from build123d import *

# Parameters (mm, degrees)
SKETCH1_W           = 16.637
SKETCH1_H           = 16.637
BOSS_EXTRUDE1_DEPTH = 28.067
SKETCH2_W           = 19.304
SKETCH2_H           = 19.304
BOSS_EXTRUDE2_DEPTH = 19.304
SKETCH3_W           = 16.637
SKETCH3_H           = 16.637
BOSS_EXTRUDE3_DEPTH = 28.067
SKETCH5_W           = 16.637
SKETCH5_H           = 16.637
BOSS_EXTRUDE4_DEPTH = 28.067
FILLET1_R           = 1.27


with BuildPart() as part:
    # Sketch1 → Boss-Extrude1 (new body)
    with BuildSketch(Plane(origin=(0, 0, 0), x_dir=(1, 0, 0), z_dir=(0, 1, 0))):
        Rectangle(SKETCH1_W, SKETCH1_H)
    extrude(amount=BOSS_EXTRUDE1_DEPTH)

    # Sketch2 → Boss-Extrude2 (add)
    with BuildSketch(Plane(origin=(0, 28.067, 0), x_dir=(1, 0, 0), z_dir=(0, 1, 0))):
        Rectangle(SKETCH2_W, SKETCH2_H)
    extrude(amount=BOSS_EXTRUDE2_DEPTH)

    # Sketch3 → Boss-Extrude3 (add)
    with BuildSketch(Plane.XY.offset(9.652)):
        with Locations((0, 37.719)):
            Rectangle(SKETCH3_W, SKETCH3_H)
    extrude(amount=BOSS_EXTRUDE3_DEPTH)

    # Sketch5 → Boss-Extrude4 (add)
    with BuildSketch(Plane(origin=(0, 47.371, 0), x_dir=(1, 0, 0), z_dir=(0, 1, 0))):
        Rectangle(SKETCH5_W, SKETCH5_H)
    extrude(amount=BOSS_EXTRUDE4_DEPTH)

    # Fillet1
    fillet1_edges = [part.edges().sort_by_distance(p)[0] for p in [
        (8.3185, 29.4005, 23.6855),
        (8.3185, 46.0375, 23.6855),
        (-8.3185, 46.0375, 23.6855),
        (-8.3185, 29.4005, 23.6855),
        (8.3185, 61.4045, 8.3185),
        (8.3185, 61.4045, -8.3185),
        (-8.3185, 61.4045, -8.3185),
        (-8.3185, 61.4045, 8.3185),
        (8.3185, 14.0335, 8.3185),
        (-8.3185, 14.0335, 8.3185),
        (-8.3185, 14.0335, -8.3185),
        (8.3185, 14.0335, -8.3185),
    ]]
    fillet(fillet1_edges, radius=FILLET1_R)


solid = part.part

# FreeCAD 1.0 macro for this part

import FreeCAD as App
import Part
import Sketcher
from FreeCAD import Vector
Q = App.Units.Quantity


def edges_at(feature, points):
    """Names of the edges that pass closest to the given points."""
    edges = feature.Shape.Edges
    near = lambda p: min(range(len(edges)), key=lambda i: edges[i].distToShape(Part.Vertex(*p))[0])
    return sorted({f"Edge{near(p) + 1}" for p in points})


def add_polygon(sketch, points):
    """Adds a closed chain of lines whose ends are joined by coincident constraints."""
    first, n = sketch.GeometryCount, len(points)
    for a, b in zip(points, points[1:] + points[:1]):
        sketch.addGeometry(Part.LineSegment(App.Vector(*a, 0), App.Vector(*b, 0)), False)
    for i in range(n):
        sketch.addConstraint(Sketcher.Constraint("Coincident", first + i, 2, first + (i + 1) % n, 1))

doc = App.newDocument("Part")
body = doc.addObject("PartDesign::Body", "Body")

# Sketch on XZ plane
sketch1 = body.newObject("Sketcher::SketchObject", "Sketch")
sketch1.AttachmentSupport = (doc.getObject("XZ_Plane"), [""])
sketch1.MapMode = "FlatFace"
add_polygon(sketch1, [(-8, -8), (-8, 8), (8, 8), (8, -8)])  # lines 0-3
sketch1.addConstraint(Sketcher.Constraint("Vertical", 0))
sketch1.addConstraint(Sketcher.Constraint("Horizontal", 1))
sketch1.addConstraint(Sketcher.Constraint("Vertical", 2))
sketch1.addConstraint(Sketcher.Constraint("Horizontal", 3))
sketch1.addConstraint(Sketcher.Constraint("Symmetric", 0, 2, 2, 2, -1, 1))
sketch1.addConstraint(Sketcher.Constraint("Equal", 3, 0))
sketch1.addConstraint(Sketcher.Constraint("DistanceX", 1, 1, 1, 2, Q("0.655 in")))
pad1 = body.newObject("PartDesign::Pad", "Pad")
pad1.Profile = sketch1
pad1.Length = Q("1.105 in")
pad1.Reversed = True

# Sketch on XZ plane
sketch2 = body.newObject("Sketcher::SketchObject", "Sketch001")
sketch2.AttachmentSupport = (doc.getObject("XZ_Plane"), [""])
sketch2.MapMode = "FlatFace"
sketch2.AttachmentOffset = App.Placement(Vector(0, 0, -1.105 * 25.4), App.Rotation())
add_polygon(sketch2, [(-10, -10), (-10, 10), (10, 10), (10, -10)])  # lines 0-3
sketch2.addConstraint(Sketcher.Constraint("Vertical", 0))
sketch2.addConstraint(Sketcher.Constraint("Horizontal", 1))
sketch2.addConstraint(Sketcher.Constraint("Vertical", 2))
sketch2.addConstraint(Sketcher.Constraint("Horizontal", 3))
sketch2.addConstraint(Sketcher.Constraint("Symmetric", 0, 2, 2, 2, -1, 1))
sketch2.addConstraint(Sketcher.Constraint("Equal", 3, 0))
sketch2.addConstraint(Sketcher.Constraint("DistanceX", 1, 1, 1, 2, Q("0.76 in")))
pad2 = body.newObject("PartDesign::Pad", "Pad001")
pad2.Profile = sketch2
pad2.Length = Q("0.76 in")
pad2.Reversed = True

# Sketch on XY plane
sketch3 = body.newObject("Sketcher::SketchObject", "Sketch002")
sketch3.AttachmentSupport = (doc.getObject("XY_Plane"), [""])
sketch3.MapMode = "FlatFace"
sketch3.AttachmentOffset = App.Placement(Vector(0, 0, 0.38 * 25.4), App.Rotation())
add_polygon(sketch3, [(-8, 46), (-8, 29), (8, 29), (8, 46)])  # lines 0-3
sketch3.addConstraint(Sketcher.Constraint("Vertical", 0))
sketch3.addConstraint(Sketcher.Constraint("Horizontal", 1))
sketch3.addConstraint(Sketcher.Constraint("Vertical", 2))
sketch3.addConstraint(Sketcher.Constraint("Horizontal", 3))
sketch3.addConstraint(Sketcher.Constraint("Equal", 3, 0))
sketch3.addConstraint(Sketcher.Constraint("DistanceX", 1, 1, 1, 2, Q("0.655 in")))
sketch3.addConstraint(Sketcher.Constraint("DistanceY", -1, 1, 2, 2, Q("1.8125 in")))
sketch3.addConstraint(Sketcher.Constraint("DistanceX", 0, 2, -1, 1, Q("0.3275 in")))
pad3 = body.newObject("PartDesign::Pad", "Pad002")
pad3.Profile = sketch3
pad3.Length = Q("1.105 in")

# Sketch on XZ plane
sketch4 = body.newObject("Sketcher::SketchObject", "Sketch003")
sketch4.AttachmentSupport = (doc.getObject("XZ_Plane"), [""])
sketch4.MapMode = "FlatFace"
sketch4.AttachmentOffset = App.Placement(Vector(0, 0, -1.865 * 25.4), App.Rotation())
add_polygon(sketch4, [(-8, -8), (-8, 8), (8, 8), (8, -8)])  # lines 0-3
sketch4.addConstraint(Sketcher.Constraint("Vertical", 0))
sketch4.addConstraint(Sketcher.Constraint("Horizontal", 1))
sketch4.addConstraint(Sketcher.Constraint("Vertical", 2))
sketch4.addConstraint(Sketcher.Constraint("Horizontal", 3))
sketch4.addConstraint(Sketcher.Constraint("Symmetric", 0, 2, 2, 2, -1, 1))
sketch4.addConstraint(Sketcher.Constraint("Equal", 3, 0))
sketch4.addConstraint(Sketcher.Constraint("DistanceX", 1, 1, 1, 2, Q("0.655 in")))
pad4 = body.newObject("PartDesign::Pad", "Pad003")
pad4.Profile = sketch4
pad4.Length = Q("1.105 in")
pad4.Reversed = True
doc.recompute()

fillet = body.newObject("PartDesign::Fillet", "Fillet")
fillet.Base = (pad4, edges_at(pad4, [
    (8.319, 29.401, 23.686),
    (8.319, 46.038, 23.686),
    (-8.319, 46.038, 23.686),
    (-8.319, 29.401, 23.686),
    (8.319, 61.404, 8.319),
    (8.319, 61.404, -8.319),
    (-8.319, 61.404, -8.319),
    (-8.319, 61.404, 8.319),
    (8.319, 14.034, 8.319),
    (-8.319, 14.034, 8.319),
    (-8.319, 14.034, -8.319),
    (8.319, 14.034, -8.319),
]))
fillet.Radius = Q("0.05 in")

doc.recompute()
